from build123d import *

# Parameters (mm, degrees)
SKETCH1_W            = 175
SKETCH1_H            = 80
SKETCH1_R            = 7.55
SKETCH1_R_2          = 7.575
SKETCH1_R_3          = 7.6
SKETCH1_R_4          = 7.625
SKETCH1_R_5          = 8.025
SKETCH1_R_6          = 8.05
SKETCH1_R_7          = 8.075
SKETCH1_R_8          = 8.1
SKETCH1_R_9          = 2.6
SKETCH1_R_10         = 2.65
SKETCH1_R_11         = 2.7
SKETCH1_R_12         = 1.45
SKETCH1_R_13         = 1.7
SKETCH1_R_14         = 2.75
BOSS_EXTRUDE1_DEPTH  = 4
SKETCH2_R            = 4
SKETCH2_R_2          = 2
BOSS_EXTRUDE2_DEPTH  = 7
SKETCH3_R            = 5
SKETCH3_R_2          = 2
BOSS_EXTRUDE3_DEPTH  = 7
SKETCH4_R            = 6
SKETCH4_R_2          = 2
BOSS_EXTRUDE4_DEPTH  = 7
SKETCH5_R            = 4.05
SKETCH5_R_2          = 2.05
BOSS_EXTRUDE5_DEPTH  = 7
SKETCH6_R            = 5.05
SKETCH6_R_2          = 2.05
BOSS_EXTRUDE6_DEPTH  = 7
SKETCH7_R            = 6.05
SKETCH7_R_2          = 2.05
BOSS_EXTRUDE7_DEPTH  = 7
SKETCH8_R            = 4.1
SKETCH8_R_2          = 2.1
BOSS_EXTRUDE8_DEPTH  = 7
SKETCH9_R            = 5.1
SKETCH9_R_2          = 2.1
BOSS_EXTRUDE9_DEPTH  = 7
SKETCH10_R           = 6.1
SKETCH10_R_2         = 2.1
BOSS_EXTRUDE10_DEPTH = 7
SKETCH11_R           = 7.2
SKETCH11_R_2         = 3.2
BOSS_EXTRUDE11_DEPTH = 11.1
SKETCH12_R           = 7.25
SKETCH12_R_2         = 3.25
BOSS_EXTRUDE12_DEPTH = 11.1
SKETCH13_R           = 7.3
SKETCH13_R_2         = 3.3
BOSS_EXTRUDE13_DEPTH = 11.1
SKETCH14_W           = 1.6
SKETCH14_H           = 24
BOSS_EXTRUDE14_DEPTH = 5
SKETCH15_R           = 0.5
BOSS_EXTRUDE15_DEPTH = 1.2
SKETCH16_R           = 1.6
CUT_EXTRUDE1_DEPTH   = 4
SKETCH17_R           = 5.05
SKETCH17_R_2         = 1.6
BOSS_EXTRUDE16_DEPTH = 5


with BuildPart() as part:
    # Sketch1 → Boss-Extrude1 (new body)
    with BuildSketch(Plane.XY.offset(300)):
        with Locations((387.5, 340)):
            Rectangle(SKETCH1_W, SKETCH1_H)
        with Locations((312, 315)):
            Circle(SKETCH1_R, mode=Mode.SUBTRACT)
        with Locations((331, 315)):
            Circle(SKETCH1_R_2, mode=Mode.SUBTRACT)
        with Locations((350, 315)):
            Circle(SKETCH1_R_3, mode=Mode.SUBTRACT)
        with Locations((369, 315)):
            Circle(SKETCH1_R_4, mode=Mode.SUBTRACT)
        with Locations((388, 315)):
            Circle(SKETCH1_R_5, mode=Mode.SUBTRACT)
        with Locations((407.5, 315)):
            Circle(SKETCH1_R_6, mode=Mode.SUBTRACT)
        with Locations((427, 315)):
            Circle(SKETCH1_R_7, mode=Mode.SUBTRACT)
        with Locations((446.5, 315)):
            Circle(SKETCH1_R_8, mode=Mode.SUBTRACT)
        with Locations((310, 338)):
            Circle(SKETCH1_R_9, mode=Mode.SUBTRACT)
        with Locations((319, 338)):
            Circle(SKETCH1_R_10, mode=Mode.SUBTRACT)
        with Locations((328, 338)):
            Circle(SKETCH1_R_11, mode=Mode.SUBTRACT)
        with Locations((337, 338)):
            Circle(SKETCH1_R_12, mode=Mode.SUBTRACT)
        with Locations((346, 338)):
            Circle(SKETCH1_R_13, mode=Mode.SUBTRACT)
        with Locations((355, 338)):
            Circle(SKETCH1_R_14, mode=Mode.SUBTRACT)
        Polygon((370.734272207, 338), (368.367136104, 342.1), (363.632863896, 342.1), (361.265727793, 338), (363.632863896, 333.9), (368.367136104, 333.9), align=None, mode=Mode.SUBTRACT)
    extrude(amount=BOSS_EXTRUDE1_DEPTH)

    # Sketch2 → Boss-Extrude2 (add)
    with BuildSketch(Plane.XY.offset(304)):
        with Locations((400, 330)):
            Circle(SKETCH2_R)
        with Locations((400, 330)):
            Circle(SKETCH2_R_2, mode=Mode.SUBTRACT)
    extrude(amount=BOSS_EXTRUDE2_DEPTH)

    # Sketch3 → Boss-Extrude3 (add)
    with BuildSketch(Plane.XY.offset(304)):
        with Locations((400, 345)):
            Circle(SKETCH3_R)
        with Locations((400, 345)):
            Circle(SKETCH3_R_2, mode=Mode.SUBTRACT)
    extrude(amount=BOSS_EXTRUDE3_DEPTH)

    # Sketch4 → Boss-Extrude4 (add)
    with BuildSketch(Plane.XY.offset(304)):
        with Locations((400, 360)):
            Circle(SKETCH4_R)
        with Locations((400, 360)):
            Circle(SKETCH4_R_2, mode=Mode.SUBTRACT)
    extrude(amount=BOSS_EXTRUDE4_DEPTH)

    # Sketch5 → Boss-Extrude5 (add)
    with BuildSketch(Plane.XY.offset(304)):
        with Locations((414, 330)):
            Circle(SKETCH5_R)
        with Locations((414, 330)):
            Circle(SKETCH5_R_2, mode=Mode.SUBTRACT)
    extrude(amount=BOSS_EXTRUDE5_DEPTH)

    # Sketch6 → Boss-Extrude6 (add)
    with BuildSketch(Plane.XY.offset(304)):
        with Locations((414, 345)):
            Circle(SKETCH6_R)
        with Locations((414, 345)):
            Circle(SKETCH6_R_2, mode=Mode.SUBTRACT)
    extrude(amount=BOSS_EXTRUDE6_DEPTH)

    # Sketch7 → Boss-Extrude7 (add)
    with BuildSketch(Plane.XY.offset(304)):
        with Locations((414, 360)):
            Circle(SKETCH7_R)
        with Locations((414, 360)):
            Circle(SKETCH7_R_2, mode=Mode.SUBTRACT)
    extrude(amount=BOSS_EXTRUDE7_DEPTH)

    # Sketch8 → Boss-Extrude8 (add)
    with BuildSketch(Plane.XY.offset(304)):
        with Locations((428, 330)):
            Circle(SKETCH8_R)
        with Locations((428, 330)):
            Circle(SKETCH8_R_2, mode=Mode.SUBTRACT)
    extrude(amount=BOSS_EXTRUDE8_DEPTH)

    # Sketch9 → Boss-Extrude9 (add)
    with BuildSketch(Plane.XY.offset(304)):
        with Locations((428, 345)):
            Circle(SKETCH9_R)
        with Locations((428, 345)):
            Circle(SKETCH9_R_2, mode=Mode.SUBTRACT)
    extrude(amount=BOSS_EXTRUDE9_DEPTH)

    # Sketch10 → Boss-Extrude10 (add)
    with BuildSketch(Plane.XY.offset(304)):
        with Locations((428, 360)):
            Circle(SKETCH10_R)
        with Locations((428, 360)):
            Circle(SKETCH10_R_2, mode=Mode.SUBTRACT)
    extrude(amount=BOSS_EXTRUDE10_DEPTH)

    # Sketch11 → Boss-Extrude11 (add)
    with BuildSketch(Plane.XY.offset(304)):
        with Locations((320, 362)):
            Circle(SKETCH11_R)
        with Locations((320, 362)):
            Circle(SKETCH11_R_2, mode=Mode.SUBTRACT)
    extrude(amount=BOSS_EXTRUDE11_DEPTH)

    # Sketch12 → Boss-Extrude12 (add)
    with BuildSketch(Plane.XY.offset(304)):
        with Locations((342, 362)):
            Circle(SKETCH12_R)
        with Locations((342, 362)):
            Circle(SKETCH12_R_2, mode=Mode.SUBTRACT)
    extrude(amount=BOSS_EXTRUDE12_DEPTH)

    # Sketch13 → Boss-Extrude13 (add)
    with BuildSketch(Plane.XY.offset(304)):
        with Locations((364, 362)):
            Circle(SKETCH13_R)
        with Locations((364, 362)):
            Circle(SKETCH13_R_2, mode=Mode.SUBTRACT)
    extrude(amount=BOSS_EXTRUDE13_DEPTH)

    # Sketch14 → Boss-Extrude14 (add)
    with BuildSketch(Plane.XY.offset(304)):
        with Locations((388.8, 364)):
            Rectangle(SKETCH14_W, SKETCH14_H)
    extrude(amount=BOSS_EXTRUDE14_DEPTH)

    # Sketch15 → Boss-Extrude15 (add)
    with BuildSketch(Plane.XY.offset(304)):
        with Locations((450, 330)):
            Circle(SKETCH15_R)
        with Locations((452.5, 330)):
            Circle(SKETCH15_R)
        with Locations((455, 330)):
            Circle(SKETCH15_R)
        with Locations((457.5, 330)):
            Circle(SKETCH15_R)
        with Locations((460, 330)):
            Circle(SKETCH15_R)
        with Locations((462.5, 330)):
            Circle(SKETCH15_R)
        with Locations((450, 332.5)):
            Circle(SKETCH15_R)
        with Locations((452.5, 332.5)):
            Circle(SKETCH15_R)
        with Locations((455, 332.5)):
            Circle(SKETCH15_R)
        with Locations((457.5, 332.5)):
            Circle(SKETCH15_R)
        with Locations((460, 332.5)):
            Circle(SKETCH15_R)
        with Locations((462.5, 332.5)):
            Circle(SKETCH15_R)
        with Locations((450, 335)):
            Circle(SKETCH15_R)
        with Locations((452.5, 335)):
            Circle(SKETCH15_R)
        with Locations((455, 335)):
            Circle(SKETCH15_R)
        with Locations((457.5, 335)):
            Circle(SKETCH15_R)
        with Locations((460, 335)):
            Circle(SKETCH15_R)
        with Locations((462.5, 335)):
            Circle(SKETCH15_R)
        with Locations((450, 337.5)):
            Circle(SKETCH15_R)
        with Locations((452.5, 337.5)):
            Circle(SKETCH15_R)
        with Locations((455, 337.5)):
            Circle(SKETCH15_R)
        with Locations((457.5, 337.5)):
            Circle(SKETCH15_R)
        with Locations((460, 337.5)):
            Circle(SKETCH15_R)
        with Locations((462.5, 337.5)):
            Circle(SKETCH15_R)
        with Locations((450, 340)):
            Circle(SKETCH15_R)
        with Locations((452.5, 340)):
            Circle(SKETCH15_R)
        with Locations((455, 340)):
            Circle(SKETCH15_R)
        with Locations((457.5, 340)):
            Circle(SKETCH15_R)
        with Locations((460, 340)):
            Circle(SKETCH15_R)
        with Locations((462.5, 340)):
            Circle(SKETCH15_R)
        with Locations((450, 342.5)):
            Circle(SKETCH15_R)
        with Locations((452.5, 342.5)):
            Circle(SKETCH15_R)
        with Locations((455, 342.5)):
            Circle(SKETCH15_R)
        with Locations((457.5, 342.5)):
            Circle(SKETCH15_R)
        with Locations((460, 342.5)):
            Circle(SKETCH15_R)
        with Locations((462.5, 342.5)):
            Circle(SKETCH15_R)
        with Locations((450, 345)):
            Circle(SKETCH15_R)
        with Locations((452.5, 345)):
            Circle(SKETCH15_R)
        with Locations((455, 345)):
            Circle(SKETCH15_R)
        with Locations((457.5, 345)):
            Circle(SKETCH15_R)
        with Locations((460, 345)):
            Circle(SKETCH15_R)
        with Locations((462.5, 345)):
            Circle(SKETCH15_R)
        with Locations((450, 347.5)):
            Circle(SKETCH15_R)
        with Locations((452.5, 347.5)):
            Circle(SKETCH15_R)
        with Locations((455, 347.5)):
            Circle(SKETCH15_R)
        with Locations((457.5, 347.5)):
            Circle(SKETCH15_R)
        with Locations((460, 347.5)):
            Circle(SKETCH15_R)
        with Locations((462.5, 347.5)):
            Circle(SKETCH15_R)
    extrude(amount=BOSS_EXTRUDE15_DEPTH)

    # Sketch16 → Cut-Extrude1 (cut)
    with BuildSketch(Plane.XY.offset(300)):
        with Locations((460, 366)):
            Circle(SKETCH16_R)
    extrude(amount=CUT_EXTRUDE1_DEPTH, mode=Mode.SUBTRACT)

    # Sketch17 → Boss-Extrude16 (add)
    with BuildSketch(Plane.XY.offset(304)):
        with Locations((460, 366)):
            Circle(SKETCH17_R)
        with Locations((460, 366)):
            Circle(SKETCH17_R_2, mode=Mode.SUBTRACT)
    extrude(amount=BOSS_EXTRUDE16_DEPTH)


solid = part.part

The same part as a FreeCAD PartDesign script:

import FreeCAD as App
import Part
import Sketcher
from FreeCAD import Vector
Q = App.Units.Quantity


def add_polygon(sketch, points):
    """Adds a closed chain of lines whose ends are joined by coincident constraints."""
    first, n = sketch.GeometryCount, len(points)
    for a, b in zip(points, points[1:] + points[:1]):
        sketch.addGeometry(Part.LineSegment(App.Vector(*a, 0), App.Vector(*b, 0)), False)
    for i in range(n):
        sketch.addConstraint(Sketcher.Constraint("Coincident", first + i, 2, first + (i + 1) % n, 1))

doc = App.newDocument("Part")
body = doc.addObject("PartDesign::Body", "Body")

sketch1 = body.newObject("Sketcher::SketchObject", "Sketch")
sketch1.AttachmentSupport = (doc.getObject("XY_Plane"), [""])
sketch1.MapMode = "FlatFace"
sketch1.AttachmentOffset = App.Placement(Vector(0, 0, 300), App.Rotation())
add_polygon(sketch1, [(300, 380), (300, 300), (475, 300), (475, 380)])
sketch1.addGeometry(Part.Circle(Vector(312, 315, 0), Vector(0, 0, 1), 7.5), False)
sketch1.addGeometry(Part.Circle(Vector(331, 315, 0), Vector(0, 0, 1), 7.6), False)
sketch1.addGeometry(Part.Circle(Vector(350, 315, 0), Vector(0, 0, 1), 7.6), False)
sketch1.addGeometry(Part.Circle(Vector(369, 315, 0), Vector(0, 0, 1), 7.6), False)
sketch1.addGeometry(Part.Circle(Vector(388, 315, 0), Vector(0, 0, 1), 8), False)
sketch1.addGeometry(Part.Circle(Vector(407.5, 315, 0), Vector(0, 0, 1), 8.1), False)
sketch1.addGeometry(Part.Circle(Vector(427, 315, 0), Vector(0, 0, 1), 8.1), False)
sketch1.addGeometry(Part.Circle(Vector(446.5, 315, 0), Vector(0, 0, 1), 8.1), False)
sketch1.addGeometry(Part.Circle(Vector(310, 338, 0), Vector(0, 0, 1), 2.6), False)
sketch1.addGeometry(Part.Circle(Vector(319, 338, 0), Vector(0, 0, 1), 2.6), False)
sketch1.addGeometry(Part.Circle(Vector(328, 338, 0), Vector(0, 0, 1), 2.7), False)
sketch1.addGeometry(Part.Circle(Vector(337, 338, 0), Vector(0, 0, 1), 1.4), False)
sketch1.addGeometry(Part.Circle(Vector(346, 338, 0), Vector(0, 0, 1), 1.7), False)
sketch1.addGeometry(Part.Circle(Vector(355, 338, 0), Vector(0, 0, 1), 2.8), False)
add_polygon(sketch1, [(368.4, 342.1), (370.7, 338), (368.4, 333.9), (363.6, 333.9), (361.3, 338), (363.6, 342.1)])
sketch1.addConstraint([
    Sketcher.Constraint("Vertical", 0),
    Sketcher.Constraint("Horizontal", 1),
    Sketcher.Constraint("Vertical", 2),
    Sketcher.Constraint("Horizontal", 3),
    Sketcher.Constraint("Horizontal", 20),
    Sketcher.Constraint("Horizontal", 23),
    Sketcher.Constraint("Parallel", 18, 21),
    Sketcher.Constraint("Parallel", 19, 22),
    Sketcher.Constraint("Horizontal", 4, 3, 5, 3),
    Sketcher.Constraint("Horizontal", 5, 3, 6, 3),
    Sketcher.Constraint("Horizontal", 6, 3, 7, 3),
    Sketcher.Constraint("Horizontal", 7, 3, 8, 3),
    Sketcher.Constraint("Horizontal", 8, 3, 9, 3),
    Sketcher.Constraint("Horizontal", 9, 3, 10, 3),
    Sketcher.Constraint("Horizontal", 10, 3, 11, 3),
    Sketcher.Constraint("Horizontal", 12, 3, 13, 3),
    Sketcher.Constraint("Horizontal", 13, 3, 14, 3),
    Sketcher.Constraint("Horizontal", 14, 3, 15, 3),
    Sketcher.Constraint("Horizontal", 15, 3, 16, 3),
    Sketcher.Constraint("Horizontal", 16, 3, 17, 3),
    Sketcher.Constraint("Horizontal", 17, 3, 18, 2),
    Sketcher.Constraint("Horizontal", 18, 2, 21, 2),
    Sketcher.Constraint("Vertical", 20, 2, 22, 2),
    Sketcher.Constraint("Vertical", 19, 2, 23, 2),
    Sketcher.Constraint("Diameter", 4, 15.1),
    Sketcher.Constraint("Diameter", 6, 15.2),
    Sketcher.Constraint("Diameter", 9, 16.1),
    Sketcher.Constraint("Diameter", 11, 16.2),
    Sketcher.Constraint("Diameter", 12, 5.2),
    Sketcher.Constraint("Diameter", 13, 5.3),
    Sketcher.Constraint("Diameter", 14, 5.4),
    Sketcher.Constraint("Diameter", 15, 2.9),
    Sketcher.Constraint("Diameter", 16, 3.4),
    Sketcher.Constraint("Diameter", 17, 5.5),
    Sketcher.Constraint("Diameter", 5, 15.15),
    Sketcher.Constraint("Diameter", 7, 15.25),
    Sketcher.Constraint("Diameter", 8, 16.05),
    Sketcher.Constraint("Diameter", 10, 16.15),
    Sketcher.Constraint("DistanceX", 1, 1, 1, 2, 175.0),
    Sketcher.Constraint("DistanceY", 0, 2, 0, 1, 80.0),
    Sketcher.Constraint("Angle", 18, Q("-60 deg")),
    Sketcher.Constraint("DistanceX", -1, 1, 4, 3, 312.0),
    Sketcher.Constraint("DistanceY", -1, 1, 4, 3, 315.0),
    Sketcher.Constraint("DistanceX", -1, 1, 5, 3, 331.0),
    Sketcher.Constraint("DistanceX", -1, 1, 6, 3, 350.0),
    Sketcher.Constraint("DistanceX", -1, 1, 7, 3, 369.0),
    Sketcher.Constraint("DistanceX", -1, 1, 8, 3, 388.0),
    Sketcher.Constraint("DistanceX", -1, 1, 10, 3, 427.0),
    Sketcher.Constraint("DistanceX", -1, 1, 12, 3, 310.0),
    Sketcher.Constraint("DistanceY", -1, 1, 12, 3, 338.0),
    Sketcher.Constraint("DistanceX", -1, 1, 13, 3, 319.0),
    Sketcher.Constraint("DistanceX", -1, 1, 14, 3, 328.0),
    Sketcher.Constraint("DistanceX", -1, 1, 15, 3, 337.0),
    Sketcher.Constraint("DistanceX", -1, 1, 16, 3, 346.0),
    Sketcher.Constraint("DistanceX", -1, 1, 17, 3, 355.0),
    Sketcher.Constraint("DistanceX", -1, 1, 0, 2, 300.0),
    Sketcher.Constraint("DistanceY", -1, 1, 0, 2, 300.0),
    Sketcher.Constraint("DistanceX", 9, 3, 11, 3, 39.0),
    Sketcher.Constraint("DistanceX", -1, 1, 9, 3, 407.5),
    Sketcher.Constraint("DistanceY", -1, 1, 19, 2, 333.9),
    Sketcher.Constraint("DistanceX", 20, 2, 20, 1, 4.734272),
    Sketcher.Constraint("DistanceX", -1, 1, 18, 2, 370.734272),
])
pad1 = body.newObject("PartDesign::Pad", "Pad")
pad1.Profile = sketch1
pad1.Length = 4

sketch2 = body.newObject("Sketcher::SketchObject", "Sketch001")
sketch2.AttachmentSupport = (doc.getObject("XY_Plane"), [""])
sketch2.MapMode = "FlatFace"
sketch2.AttachmentOffset = App.Placement(Vector(0, 0, 304), App.Rotation())
sketch2.addGeometry([
    Part.Circle(Vector(400, 330, 0), Vector(0, 0, 1), 4),
    Part.Circle(Vector(400, 330, 0), Vector(0, 0, 1), 2),
], False)
sketch2.addConstraint([
    Sketcher.Constraint("Coincident", 1, 3, 0, 3),
    Sketcher.Constraint("Diameter", 0, 8.0),
    Sketcher.Constraint("Diameter", 1, 4.0),
    Sketcher.Constraint("DistanceX", -1, 1, 0, 3, 400.0),
    Sketcher.Constraint("DistanceY", -1, 1, 0, 3, 330.0),
])
pad2 = body.newObject("PartDesign::Pad", "Pad001")
pad2.Profile = sketch2
pad2.Length = 7

sketch3 = body.newObject("Sketcher::SketchObject", "Sketch002")
sketch3.AttachmentSupport = (doc.getObject("XY_Plane"), [""])
sketch3.MapMode = "FlatFace"
sketch3.AttachmentOffset = App.Placement(Vector(0, 0, 304), App.Rotation())
sketch3.addGeometry([
    Part.Circle(Vector(400, 345, 0), Vector(0, 0, 1), 5),
    Part.Circle(Vector(400, 345, 0), Vector(0, 0, 1), 2),
], False)
sketch3.addConstraint([
    Sketcher.Constraint("Coincident", 1, 3, 0, 3),
    Sketcher.Constraint("Diameter", 0, 10.0),
    Sketcher.Constraint("Diameter", 1, 4.0),
    Sketcher.Constraint("DistanceX", -1, 1, 0, 3, 400.0),
    Sketcher.Constraint("DistanceY", -1, 1, 0, 3, 345.0),
])
pad3 = body.newObject("PartDesign::Pad", "Pad002")
pad3.Profile = sketch3
pad3.Length = 7

sketch4 = body.newObject("Sketcher::SketchObject", "Sketch003")
sketch4.AttachmentSupport = (doc.getObject("XY_Plane"), [""])
sketch4.MapMode = "FlatFace"
sketch4.AttachmentOffset = App.Placement(Vector(0, 0, 304), App.Rotation())
sketch4.addGeometry([
    Part.Circle(Vector(400, 360, 0), Vector(0, 0, 1), 6),
    Part.Circle(Vector(400, 360, 0), Vector(0, 0, 1), 2),
], False)
sketch4.addConstraint([
    Sketcher.Constraint("Coincident", 1, 3, 0, 3),
    Sketcher.Constraint("Diameter", 0, 12.0),
    Sketcher.Constraint("Diameter", 1, 4.0),
    Sketcher.Constraint("DistanceX", -1, 1, 0, 3, 400.0),
    Sketcher.Constraint("DistanceY", -1, 1, 0, 3, 360.0),
])
pad4 = body.newObject("PartDesign::Pad", "Pad003")
pad4.Profile = sketch4
pad4.Length = 7

sketch5 = body.newObject("Sketcher::SketchObject", "Sketch004")
sketch5.AttachmentSupport = (doc.getObject("XY_Plane"), [""])
sketch5.MapMode = "FlatFace"
sketch5.AttachmentOffset = App.Placement(Vector(0, 0, 304), App.Rotation())
sketch5.addGeometry([
    Part.Circle(Vector(414, 330, 0), Vector(0, 0, 1), 4),
    Part.Circle(Vector(414, 330, 0), Vector(0, 0, 1), 2),
], False)
sketch5.addConstraint([
    Sketcher.Constraint("Coincident", 1, 3, 0, 3),
    Sketcher.Constraint("Diameter", 0, 8.1),
    Sketcher.Constraint("Diameter", 1, 4.1),
    Sketcher.Constraint("DistanceX", -1, 1, 0, 3, 414.0),
    Sketcher.Constraint("DistanceY", -1, 1, 0, 3, 330.0),
])
pad5 = body.newObject("PartDesign::Pad", "Pad004")
pad5.Profile = sketch5
pad5.Length = 7

sketch6 = body.newObject("Sketcher::SketchObject", "Sketch005")
sketch6.AttachmentSupport = (doc.getObject("XY_Plane"), [""])
sketch6.MapMode = "FlatFace"
sketch6.AttachmentOffset = App.Placement(Vector(0, 0, 304), App.Rotation())
sketch6.addGeometry([
    Part.Circle(Vector(414, 345, 0), Vector(0, 0, 1), 5),
    Part.Circle(Vector(414, 345, 0), Vector(0, 0, 1), 2),
], False)
sketch6.addConstraint([
    Sketcher.Constraint("Coincident", 1, 3, 0, 3),
    Sketcher.Constraint("Diameter", 0, 10.1),
    Sketcher.Constraint("Diameter", 1, 4.1),
    Sketcher.Constraint("DistanceX", -1, 1, 0, 3, 414.0),
    Sketcher.Constraint("DistanceY", -1, 1, 0, 3, 345.0),
])
pad6 = body.newObject("PartDesign::Pad", "Pad005")
pad6.Profile = sketch6
pad6.Length = 7

sketch7 = body.newObject("Sketcher::SketchObject", "Sketch006")
sketch7.AttachmentSupport = (doc.getObject("XY_Plane"), [""])
sketch7.MapMode = "FlatFace"
sketch7.AttachmentOffset = App.Placement(Vector(0, 0, 304), App.Rotation())
sketch7.addGeometry([
    Part.Circle(Vector(414, 360, 0), Vector(0, 0, 1), 6),
    Part.Circle(Vector(414, 360, 0), Vector(0, 0, 1), 2),
], False)
sketch7.addConstraint([
    Sketcher.Constraint("Coincident", 1, 3, 0, 3),
    Sketcher.Constraint("Diameter", 0, 12.1),
    Sketcher.Constraint("Diameter", 1, 4.1),
    Sketcher.Constraint("DistanceX", -1, 1, 0, 3, 414.0),
    Sketcher.Constraint("DistanceY", -1, 1, 0, 3, 360.0),
])
pad7 = body.newObject("PartDesign::Pad", "Pad006")
pad7.Profile = sketch7
pad7.Length = 7

sketch8 = body.newObject("Sketcher::SketchObject", "Sketch007")
sketch8.AttachmentSupport = (doc.getObject("XY_Plane"), [""])
sketch8.MapMode = "FlatFace"
sketch8.AttachmentOffset = App.Placement(Vector(0, 0, 304), App.Rotation())
sketch8.addGeometry([
    Part.Circle(Vector(428, 330, 0), Vector(0, 0, 1), 4.1),
    Part.Circle(Vector(428, 330, 0), Vector(0, 0, 1), 2.1),
], False)
sketch8.addConstraint([
    Sketcher.Constraint("Coincident", 1, 3, 0, 3),
    Sketcher.Constraint("Diameter", 0, 8.2),
    Sketcher.Constraint("Diameter", 1, 4.2),
    Sketcher.Constraint("DistanceX", -1, 1, 0, 3, 428.0),
    Sketcher.Constraint("DistanceY", -1, 1, 0, 3, 330.0),
])
pad8 = body.newObject("PartDesign::Pad", "Pad007")
pad8.Profile = sketch8
pad8.Length = 7

sketch9 = body.newObject("Sketcher::SketchObject", "Sketch008")
sketch9.AttachmentSupport = (doc.getObject("XY_Plane"), [""])
sketch9.MapMode = "FlatFace"
sketch9.AttachmentOffset = App.Placement(Vector(0, 0, 304), App.Rotation())
sketch9.addGeometry([
    Part.Circle(Vector(428, 345, 0), Vector(0, 0, 1), 5.1),
    Part.Circle(Vector(428, 345, 0), Vector(0, 0, 1), 2.1),
], False)
sketch9.addConstraint([
    Sketcher.Constraint("Coincident", 1, 3, 0, 3),
    Sketcher.Constraint("Diameter", 0, 10.2),
    Sketcher.Constraint("Diameter", 1, 4.2),
    Sketcher.Constraint("DistanceX", -1, 1, 0, 3, 428.0),
    Sketcher.Constraint("DistanceY", -1, 1, 0, 3, 345.0),
])
pad9 = body.newObject("PartDesign::Pad", "Pad008")
pad9.Profile = sketch9
pad9.Length = 7

sketch10 = body.newObject("Sketcher::SketchObject", "Sketch009")
sketch10.AttachmentSupport = (doc.getObject("XY_Plane"), [""])
sketch10.MapMode = "FlatFace"
sketch10.AttachmentOffset = App.Placement(Vector(0, 0, 304), App.Rotation())
sketch10.addGeometry([
    Part.Circle(Vector(428, 360, 0), Vector(0, 0, 1), 6.1),
    Part.Circle(Vector(428, 360, 0), Vector(0, 0, 1), 2.1),
], False)
sketch10.addConstraint([
    Sketcher.Constraint("Coincident", 1, 3, 0, 3),
    Sketcher.Constraint("Diameter", 0, 12.2),
    Sketcher.Constraint("Diameter", 1, 4.2),
    Sketcher.Constraint("DistanceX", -1, 1, 0, 3, 428.0),
    Sketcher.Constraint("DistanceY", -1, 1, 0, 3, 360.0),
])
pad10 = body.newObject("PartDesign::Pad", "Pad009")
pad10.Profile = sketch10
pad10.Length = 7

sketch11 = body.newObject("Sketcher::SketchObject", "Sketch010")
sketch11.AttachmentSupport = (doc.getObject("XY_Plane"), [""])
sketch11.MapMode = "FlatFace"
sketch11.AttachmentOffset = App.Placement(Vector(0, 0, 304), App.Rotation())
sketch11.addGeometry([
    Part.Circle(Vector(320, 362, 0), Vector(0, 0, 1), 7.2),
    Part.Circle(Vector(320, 362, 0), Vector(0, 0, 1), 3.2),
], False)
sketch11.addConstraint([
    Sketcher.Constraint("Coincident", 1, 3, 0, 3),
    Sketcher.Constraint("Diameter", 0, 14.4),
    Sketcher.Constraint("Diameter", 1, 6.4),
    Sketcher.Constraint("DistanceX", -1, 1, 0, 3, 320.0),
    Sketcher.Constraint("DistanceY", -1, 1, 0, 3, 362.0),
])
pad11 = body.newObject("PartDesign::Pad", "Pad010")
pad11.Profile = sketch11
pad11.Length = 11.1

sketch12 = body.newObject("Sketcher::SketchObject", "Sketch011")
sketch12.AttachmentSupport = (doc.getObject("XY_Plane"), [""])
sketch12.MapMode = "FlatFace"
sketch12.AttachmentOffset = App.Placement(Vector(0, 0, 304), App.Rotation())
sketch12.addGeometry([
    Part.Circle(Vector(342, 362, 0), Vector(0, 0, 1), 7.2),
    Part.Circle(Vector(342, 362, 0), Vector(0, 0, 1), 3.2),
], False)
sketch12.addConstraint([
    Sketcher.Constraint("Coincident", 1, 3, 0, 3),
    Sketcher.Constraint("Diameter", 0, 14.5),
    Sketcher.Constraint("Diameter", 1, 6.5),
    Sketcher.Constraint("DistanceX", -1, 1, 0, 3, 342.0),
    Sketcher.Constraint("DistanceY", -1, 1, 0, 3, 362.0),
])
pad12 = body.newObject("PartDesign::Pad", "Pad011")
pad12.Profile = sketch12
pad12.Length = 11.1

sketch13 = body.newObject("Sketcher::SketchObject", "Sketch012")
sketch13.AttachmentSupport = (doc.getObject("XY_Plane"), [""])
sketch13.MapMode = "FlatFace"
sketch13.AttachmentOffset = App.Placement(Vector(0, 0, 304), App.Rotation())
sketch13.addGeometry([
    Part.Circle(Vector(364, 362, 0), Vector(0, 0, 1), 7.3),
    Part.Circle(Vector(364, 362, 0), Vector(0, 0, 1), 3.3),
], False)
sketch13.addConstraint([
    Sketcher.Constraint("Coincident", 1, 3, 0, 3),
    Sketcher.Constraint("Diameter", 0, 14.6),
    Sketcher.Constraint("Diameter", 1, 6.6),
    Sketcher.Constraint("DistanceX", -1, 1, 0, 3, 364.0),
    Sketcher.Constraint("DistanceY", -1, 1, 0, 3, 362.0),
])
pad13 = body.newObject("PartDesign::Pad", "Pad012")
pad13.Profile = sketch13
pad13.Length = 11.1

sketch14 = body.newObject("Sketcher::SketchObject", "Sketch013")
sketch14.AttachmentSupport = (doc.getObject("XY_Plane"), [""])
sketch14.MapMode = "FlatFace"
sketch14.AttachmentOffset = App.Placement(Vector(0, 0, 304), App.Rotation())
add_polygon(sketch14, [(388, 376), (388, 352), (389.6, 352), (389.6, 376)])
sketch14.addConstraint([
    Sketcher.Constraint("Vertical", 0),
    Sketcher.Constraint("Horizontal", 1),
    Sketcher.Constraint("Vertical", 2),
    Sketcher.Constraint("Horizontal", 3),
    Sketcher.Constraint("DistanceY", 0, 2, 0, 1, 24.0),
    Sketcher.Constraint("DistanceX", 1, 1, 1, 2, 1.6),
    Sketcher.Constraint("DistanceX", -1, 1, 0, 2, 388.0),
    Sketcher.Constraint("DistanceY", -1, 1, 0, 2, 352.0),
])
pad14 = body.newObject("PartDesign::Pad", "Pad013")
pad14.Profile = sketch14
pad14.Length = 5

sketch15 = body.newObject("Sketcher::SketchObject", "Sketch014")
sketch15.AttachmentSupport = (doc.getObject("XY_Plane"), [""])
sketch15.MapMode = "FlatFace"
sketch15.AttachmentOffset = App.Placement(Vector(0, 0, 304), App.Rotation())
sketch15.addGeometry([
    Part.Circle(Vector(450, 330, 0), Vector(0, 0, 1), 0.5),
    Part.Circle(Vector(452.5, 330, 0), Vector(0, 0, 1), 0.5),
    Part.Circle(Vector(455, 330, 0), Vector(0, 0, 1), 0.5),
    Part.Circle(Vector(457.5, 330, 0), Vector(0, 0, 1), 0.5),
    Part.Circle(Vector(460, 330, 0), Vector(0, 0, 1), 0.5),
    Part.Circle(Vector(462.5, 330, 0), Vector(0, 0, 1), 0.5),
    Part.Circle(Vector(450, 332.5, 0), Vector(0, 0, 1), 0.5),
    Part.Circle(Vector(452.5, 332.5, 0), Vector(0, 0, 1), 0.5),
    Part.Circle(Vector(455, 332.5, 0), Vector(0, 0, 1), 0.5),
    Part.Circle(Vector(457.5, 332.5, 0), Vector(0, 0, 1), 0.5),
    Part.Circle(Vector(460, 332.5, 0), Vector(0, 0, 1), 0.5),
    Part.Circle(Vector(462.5, 332.5, 0), Vector(0, 0, 1), 0.5),
    Part.Circle(Vector(450, 335, 0), Vector(0, 0, 1), 0.5),
    Part.Circle(Vector(452.5, 335, 0), Vector(0, 0, 1), 0.5),
    Part.Circle(Vector(455, 335, 0), Vector(0, 0, 1), 0.5),
    Part.Circle(Vector(457.5, 335, 0), Vector(0, 0, 1), 0.5),
    Part.Circle(Vector(460, 335, 0), Vector(0, 0, 1), 0.5),
    Part.Circle(Vector(462.5, 335, 0), Vector(0, 0, 1), 0.5),
    Part.Circle(Vector(450, 337.5, 0), Vector(0, 0, 1), 0.5),
    Part.Circle(Vector(452.5, 337.5, 0), Vector(0, 0, 1), 0.5),
    Part.Circle(Vector(455, 337.5, 0), Vector(0, 0, 1), 0.5),
    Part.Circle(Vector(457.5, 337.5, 0), Vector(0, 0, 1), 0.5),
    Part.Circle(Vector(460, 337.5, 0), Vector(0, 0, 1), 0.5),
    Part.Circle(Vector(462.5, 337.5, 0), Vector(0, 0, 1), 0.5),
    Part.Circle(Vector(450, 340, 0), Vector(0, 0, 1), 0.5),
    Part.Circle(Vector(452.5, 340, 0), Vector(0, 0, 1), 0.5),
    Part.Circle(Vector(455, 340, 0), Vector(0, 0, 1), 0.5),
    Part.Circle(Vector(457.5, 340, 0), Vector(0, 0, 1), 0.5),
    Part.Circle(Vector(460, 340, 0), Vector(0, 0, 1), 0.5),
    Part.Circle(Vector(462.5, 340, 0), Vector(0, 0, 1), 0.5),
    Part.Circle(Vector(450, 342.5, 0), Vector(0, 0, 1), 0.5),
    Part.Circle(Vector(452.5, 342.5, 0), Vector(0, 0, 1), 0.5),
    Part.Circle(Vector(455, 342.5, 0), Vector(0, 0, 1), 0.5),
    Part.Circle(Vector(457.5, 342.5, 0), Vector(0, 0, 1), 0.5),
    Part.Circle(Vector(460, 342.5, 0), Vector(0, 0, 1), 0.5),
    Part.Circle(Vector(462.5, 342.5, 0), Vector(0, 0, 1), 0.5),
    Part.Circle(Vector(450, 345, 0), Vector(0, 0, 1), 0.5),
    Part.Circle(Vector(452.5, 345, 0), Vector(0, 0, 1), 0.5),
    Part.Circle(Vector(455, 345, 0), Vector(0, 0, 1), 0.5),
    Part.Circle(Vector(457.5, 345, 0), Vector(0, 0, 1), 0.5),
    Part.Circle(Vector(460, 345, 0), Vector(0, 0, 1), 0.5),
    Part.Circle(Vector(462.5, 345, 0), Vector(0, 0, 1), 0.5),
    Part.Circle(Vector(450, 347.5, 0), Vector(0, 0, 1), 0.5),
    Part.Circle(Vector(452.5, 347.5, 0), Vector(0, 0, 1), 0.5),
    Part.Circle(Vector(455, 347.5, 0), Vector(0, 0, 1), 0.5),
    Part.Circle(Vector(457.5, 347.5, 0), Vector(0, 0, 1), 0.5),
    Part.Circle(Vector(460, 347.5, 0), Vector(0, 0, 1), 0.5),
    Part.Circle(Vector(462.5, 347.5, 0), Vector(0, 0, 1), 0.5),
], False)
sketch15.addConstraint([
    Sketcher.Constraint("Equal", 0, 1),
    Sketcher.Constraint("Equal", 1, 2),
    Sketcher.Constraint("Equal", 2, 3),
    Sketcher.Constraint("Equal", 3, 4),
    Sketcher.Constraint("Equal", 4, 5),
    Sketcher.Constraint("Equal", 5, 6),
    Sketcher.Constraint("Equal", 6, 7),
    Sketcher.Constraint("Equal", 7, 8),
    Sketcher.Constraint("Equal", 8, 9),
    Sketcher.Constraint("Equal", 9, 10),
    Sketcher.Constraint("Equal", 10, 11),
    Sketcher.Constraint("Equal", 11, 12),
    Sketcher.Constraint("Equal", 12, 13),
    Sketcher.Constraint("Equal", 13, 14),
    Sketcher.Constraint("Equal", 14, 15),
    Sketcher.Constraint("Equal", 15, 16),
    Sketcher.Constraint("Equal", 16, 17),
    Sketcher.Constraint("Equal", 17, 18),
    Sketcher.Constraint("Equal", 18, 19),
    Sketcher.Constraint("Equal", 19, 20),
    Sketcher.Constraint("Equal", 20, 21),
    Sketcher.Constraint("Equal", 21, 22),
    Sketcher.Constraint("Equal", 22, 23),
    Sketcher.Constraint("Equal", 23, 24),
    Sketcher.Constraint("Equal", 24, 25),
    Sketcher.Constraint("Equal", 25, 26),
    Sketcher.Constraint("Equal", 26, 27),
    Sketcher.Constraint("Equal", 27, 28),
    Sketcher.Constraint("Equal", 28, 29),
    Sketcher.Constraint("Equal", 29, 30),
    Sketcher.Constraint("Equal", 30, 31),
    Sketcher.Constraint("Equal", 31, 32),
    Sketcher.Constraint("Equal", 32, 33),
    Sketcher.Constraint("Equal", 33, 34),
    Sketcher.Constraint("Equal", 34, 35),
    Sketcher.Constraint("Equal", 35, 36),
    Sketcher.Constraint("Equal", 36, 37),
    Sketcher.Constraint("Equal", 37, 38),
    Sketcher.Constraint("Equal", 38, 39),
    Sketcher.Constraint("Equal", 39, 40),
    Sketcher.Constraint("Equal", 40, 41),
    Sketcher.Constraint("Equal", 41, 42),
    Sketcher.Constraint("Equal", 42, 43),
    Sketcher.Constraint("Equal", 43, 44),
    Sketcher.Constraint("Equal", 44, 45),
    Sketcher.Constraint("Equal", 45, 46),
    Sketcher.Constraint("Equal", 46, 47),
    Sketcher.Constraint("Horizontal", 0, 3, 1, 3),
    Sketcher.Constraint("Horizontal", 1, 3, 2, 3),
    Sketcher.Constraint("Horizontal", 2, 3, 3, 3),
    Sketcher.Constraint("Horizontal", 3, 3, 4, 3),
    Sketcher.Constraint("Horizontal", 4, 3, 5, 3),
    Sketcher.Constraint("Horizontal", 6, 3, 7, 3),
    Sketcher.Constraint("Horizontal", 7, 3, 8, 3),
    Sketcher.Constraint("Horizontal", 8, 3, 9, 3),
    Sketcher.Constraint("Horizontal", 9, 3, 10, 3),
    Sketcher.Constraint("Horizontal", 10, 3, 11, 3),
    Sketcher.Constraint("Horizontal", 12, 3, 13, 3),
    Sketcher.Constraint("Horizontal", 13, 3, 14, 3),
    Sketcher.Constraint("Horizontal", 14, 3, 15, 3),
    Sketcher.Constraint("Horizontal", 15, 3, 16, 3),
    Sketcher.Constraint("Horizontal", 16, 3, 17, 3),
    Sketcher.Constraint("Horizontal", 18, 3, 19, 3),
    Sketcher.Constraint("Horizontal", 19, 3, 20, 3),
    Sketcher.Constraint("Horizontal", 20, 3, 21, 3),
    Sketcher.Constraint("Horizontal", 21, 3, 22, 3),
    Sketcher.Constraint("Horizontal", 22, 3, 23, 3),
    Sketcher.Constraint("Horizontal", 24, 3, 25, 3),
    Sketcher.Constraint("Horizontal", 25, 3, 26, 3),
    Sketcher.Constraint("Horizontal", 26, 3, 27, 3),
    Sketcher.Constraint("Horizontal", 27, 3, 28, 3),
    Sketcher.Constraint("Horizontal", 28, 3, 29, 3),
    Sketcher.Constraint("Horizontal", 30, 3, 31, 3),
    Sketcher.Constraint("Horizontal", 31, 3, 32, 3),
    Sketcher.Constraint("Horizontal", 32, 3, 33, 3),
    Sketcher.Constraint("Horizontal", 33, 3, 34, 3),
    Sketcher.Constraint("Horizontal", 34, 3, 35, 3),
    Sketcher.Constraint("Horizontal", 36, 3, 37, 3),
    Sketcher.Constraint("Horizontal", 37, 3, 38, 3),
    Sketcher.Constraint("Horizontal", 38, 3, 39, 3),
    Sketcher.Constraint("Horizontal", 39, 3, 40, 3),
    Sketcher.Constraint("Horizontal", 40, 3, 41, 3),
    Sketcher.Constraint("Horizontal", 42, 3, 43, 3),
    Sketcher.Constraint("Horizontal", 43, 3, 44, 3),
    Sketcher.Constraint("Horizontal", 44, 3, 45, 3),
    Sketcher.Constraint("Horizontal", 45, 3, 46, 3),
    Sketcher.Constraint("Horizontal", 46, 3, 47, 3),
    Sketcher.Constraint("Vertical", 0, 3, 6, 3),
    Sketcher.Constraint("Vertical", 1, 3, 7, 3),
    Sketcher.Constraint("Vertical", 2, 3, 8, 3),
    Sketcher.Constraint("Vertical", 3, 3, 9, 3),
    Sketcher.Constraint("Vertical", 4, 3, 10, 3),
    Sketcher.Constraint("Vertical", 5, 3, 11, 3),
    Sketcher.Constraint("Vertical", 6, 3, 12, 3),
    Sketcher.Constraint("Vertical", 7, 3, 13, 3),
    Sketcher.Constraint("Vertical", 8, 3, 14, 3),
    Sketcher.Constraint("Vertical", 9, 3, 15, 3),
    Sketcher.Constraint("Vertical", 10, 3, 16, 3),
    Sketcher.Constraint("Vertical", 11, 3, 17, 3),
    Sketcher.Constraint("Vertical", 12, 3, 18, 3),
    Sketcher.Constraint("Vertical", 13, 3, 19, 3),
    Sketcher.Constraint("Vertical", 14, 3, 20, 3),
    Sketcher.Constraint("Vertical", 15, 3, 21, 3),
    Sketcher.Constraint("Vertical", 16, 3, 22, 3),
    Sketcher.Constraint("Vertical", 17, 3, 23, 3),
    Sketcher.Constraint("Vertical", 18, 3, 24, 3),
    Sketcher.Constraint("Vertical", 19, 3, 25, 3),
    Sketcher.Constraint("Vertical", 20, 3, 26, 3),
    Sketcher.Constraint("Vertical", 21, 3, 27, 3),
    Sketcher.Constraint("Vertical", 22, 3, 28, 3),
    Sketcher.Constraint("Vertical", 23, 3, 29, 3),
    Sketcher.Constraint("Vertical", 24, 3, 30, 3),
    Sketcher.Constraint("Vertical", 25, 3, 31, 3),
    Sketcher.Constraint("Vertical", 26, 3, 32, 3),
    Sketcher.Constraint("Vertical", 27, 3, 33, 3),
    Sketcher.Constraint("Vertical", 28, 3, 34, 3),
    Sketcher.Constraint("Vertical", 29, 3, 35, 3),
    Sketcher.Constraint("Vertical", 30, 3, 36, 3),
    Sketcher.Constraint("Vertical", 31, 3, 37, 3),
    Sketcher.Constraint("Vertical", 32, 3, 38, 3),
    Sketcher.Constraint("Vertical", 33, 3, 39, 3),
    Sketcher.Constraint("Vertical", 34, 3, 40, 3),
    Sketcher.Constraint("Vertical", 35, 3, 41, 3),
    Sketcher.Constraint("Vertical", 36, 3, 42, 3),
    Sketcher.Constraint("Vertical", 37, 3, 43, 3),
    Sketcher.Constraint("Vertical", 38, 3, 44, 3),
    Sketcher.Constraint("Vertical", 39, 3, 45, 3),
    Sketcher.Constraint("Vertical", 40, 3, 46, 3),
    Sketcher.Constraint("Vertical", 41, 3, 47, 3),
    Sketcher.Constraint("Diameter", 0, 1.0),
    Sketcher.Constraint("DistanceX", -1, 1, 0, 3, 450.0),
    Sketcher.Constraint("DistanceY", -1, 1, 0, 3, 330.0),
    Sketcher.Constraint("DistanceX", -1, 1, 2, 3, 455.0),
    Sketcher.Constraint("DistanceX", -1, 1, 4, 3, 460.0),
    Sketcher.Constraint("DistanceY", -1, 1, 12, 3, 335.0),
    Sketcher.Constraint("DistanceY", -1, 1, 24, 3, 340.0),
    Sketcher.Constraint("DistanceY", -1, 1, 36, 3, 345.0),
    Sketcher.Constraint("DistanceX", 1, 3, 3, 3, 5.0),
    Sketcher.Constraint("DistanceX", 3, 3, 5, 3, 5.0),
    Sketcher.Constraint("DistanceY", 6, 3, 18, 3, 5.0),
    Sketcher.Constraint("DistanceY", 18, 3, 30, 3, 5.0),
    Sketcher.Constraint("DistanceY", 30, 3, 42, 3, 5.0),
    Sketcher.Constraint("DistanceX", -1, 1, 1, 3, 452.5),
    Sketcher.Constraint("DistanceY", -1, 1, 6, 3, 332.5),
])
pad15 = body.newObject("PartDesign::Pad", "Pad014")
pad15.Profile = sketch15
pad15.Length = 1.2

sketch16 = body.newObject("Sketcher::SketchObject", "Sketch015")
sketch16.AttachmentSupport = (doc.getObject("XY_Plane"), [""])
sketch16.MapMode = "FlatFace"
sketch16.AttachmentOffset = App.Placement(Vector(0, 0, 300), App.Rotation())
sketch16.addGeometry(Part.Circle(Vector(460, 366, 0), Vector(0, 0, 1), 1.6), False)
sketch16.addConstraint([
    Sketcher.Constraint("Diameter", 0, 3.2),
    Sketcher.Constraint("DistanceX", -1, 1, 0, 3, 460.0),
    Sketcher.Constraint("DistanceY", -1, 1, 0, 3, 366.0),
])
pocket1 = body.newObject("PartDesign::Pocket", "Pocket")
pocket1.Profile = sketch16
pocket1.Length = 4
pocket1.Reversed = True

sketch17 = body.newObject("Sketcher::SketchObject", "Sketch016")
sketch17.AttachmentSupport = (doc.getObject("XY_Plane"), [""])
sketch17.MapMode = "FlatFace"
sketch17.AttachmentOffset = App.Placement(Vector(0, 0, 304), App.Rotation())
sketch17.addGeometry([
    Part.Circle(Vector(460, 366, 0), Vector(0, 0, 1), 5),
    Part.Circle(Vector(460, 366, 0), Vector(0, 0, 1), 1.6),
], False)
sketch17.addConstraint([
    Sketcher.Constraint("Coincident", 1, 3, 0, 3),
    Sketcher.Constraint("Diameter", 0, 10.1),
    Sketcher.Constraint("Diameter", 1, 3.2),
    Sketcher.Constraint("DistanceX", -1, 1, 0, 3, 460.0),
    Sketcher.Constraint("DistanceY", -1, 1, 0, 3, 366.0),
])
pad16 = body.newObject("PartDesign::Pad", "Pad015")
pad16.Profile = sketch17
pad16.Length = 5

doc.recompute()
